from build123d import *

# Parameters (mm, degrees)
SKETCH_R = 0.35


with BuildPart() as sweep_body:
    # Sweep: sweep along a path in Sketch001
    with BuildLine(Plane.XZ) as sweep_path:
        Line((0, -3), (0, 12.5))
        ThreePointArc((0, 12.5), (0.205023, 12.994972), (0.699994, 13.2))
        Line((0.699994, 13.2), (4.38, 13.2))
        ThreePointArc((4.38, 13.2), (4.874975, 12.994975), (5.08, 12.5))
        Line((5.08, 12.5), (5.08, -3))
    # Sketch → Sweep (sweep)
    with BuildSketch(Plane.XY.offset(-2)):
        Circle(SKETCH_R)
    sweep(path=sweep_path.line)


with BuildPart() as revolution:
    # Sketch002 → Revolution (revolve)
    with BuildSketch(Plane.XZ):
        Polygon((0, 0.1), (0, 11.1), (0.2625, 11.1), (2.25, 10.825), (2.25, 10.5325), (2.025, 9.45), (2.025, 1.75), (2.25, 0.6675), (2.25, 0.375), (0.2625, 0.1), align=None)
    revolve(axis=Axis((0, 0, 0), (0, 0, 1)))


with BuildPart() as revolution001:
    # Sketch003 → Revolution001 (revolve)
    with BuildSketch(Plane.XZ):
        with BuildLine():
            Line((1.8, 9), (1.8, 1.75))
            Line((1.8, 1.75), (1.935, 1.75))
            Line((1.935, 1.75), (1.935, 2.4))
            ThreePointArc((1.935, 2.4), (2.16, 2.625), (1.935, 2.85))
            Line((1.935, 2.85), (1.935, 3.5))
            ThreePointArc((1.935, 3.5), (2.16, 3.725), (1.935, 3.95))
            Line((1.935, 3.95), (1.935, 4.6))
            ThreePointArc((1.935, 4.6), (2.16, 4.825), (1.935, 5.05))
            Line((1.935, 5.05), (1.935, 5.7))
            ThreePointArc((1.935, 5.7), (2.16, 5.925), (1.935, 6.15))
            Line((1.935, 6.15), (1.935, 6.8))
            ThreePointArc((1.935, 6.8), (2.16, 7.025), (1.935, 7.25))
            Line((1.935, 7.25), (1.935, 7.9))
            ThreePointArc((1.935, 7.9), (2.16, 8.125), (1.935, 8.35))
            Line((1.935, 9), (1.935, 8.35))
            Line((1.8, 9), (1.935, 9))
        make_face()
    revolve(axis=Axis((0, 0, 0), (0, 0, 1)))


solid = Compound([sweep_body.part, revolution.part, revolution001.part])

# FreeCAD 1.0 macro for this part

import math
import FreeCAD as App
import Part
import Sketcher
from FreeCAD import Vector
Q = App.Units.Quantity

doc = App.newDocument("Part")
body = doc.addObject("PartDesign::Body", "Body")

# Sketch on XY plane
sketch1 = body.newObject("Sketcher::SketchObject", "Sketch")
sketch1.AttachmentSupport = (doc.getObject("XY_Plane"), [""])
sketch1.MapMode = "FlatFace"
sketch1.AttachmentOffset = App.Placement(Vector(0, 0, -2), App.Rotation())
sketch1.addGeometry(Part.Circle(Vector(0, 0, 0), Vector(0, 0, 1), 0.35), False)
sketch1.addConstraint([
    Sketcher.Constraint("Coincident", 0, 3, -1, 1),
    Sketcher.Constraint("Diameter", 0, Q("0.7 mm")),
])

# Sketch on XZ plane
sketch2 = body.newObject("Sketcher::SketchObject", "Sketch001")
sketch2.AttachmentSupport = (doc.getObject("XZ_Plane"), [""])
sketch2.MapMode = "FlatFace"
sketch2.addGeometry([
    Part.LineSegment(Vector(0, -3, 0), Vector(0, 12.5, 0)),  # 0
    Part.ArcOfCircle(Part.Circle(Vector(0.7, 12.5, 0), Vector(0, 0, 1), 0.7), math.radians(90), math.radians(180)),  # 1
    Part.LineSegment(Vector(0.7, 13.2, 0), Vector(4.4, 13.2, 0)),  # 2
    Part.ArcOfCircle(Part.Circle(Vector(4.4, 12.5, 0), Vector(0, 0, 1), 0.7), math.radians(0), math.radians(90)),  # 3
    Part.LineSegment(Vector(5.1, 12.5, 0), Vector(5.1, -3, 0)),  # 4
], False)
sketch2.addConstraint([
    Sketcher.Constraint("Tangent", 0, 2, 1, 2),
    Sketcher.Constraint("Coincident", 1, 1, 2, 1),
    Sketcher.Constraint("Tangent", 2, 2, 3, 2),
    Sketcher.Constraint("Tangent", 3, 1, 4, 1),
    Sketcher.Constraint("Vertical", 0),
    Sketcher.Constraint("Horizontal", 2),
    Sketcher.Constraint("Vertical", 4),
    Sketcher.Constraint("Equal", 1, 3),
    Sketcher.Constraint("PointOnObject", 0, 1, -2),
    Sketcher.Constraint("Horizontal", 0, 1, 4, 2),
    Sketcher.Constraint("Radius", 1, Q("0.700001 mm")),
    Sketcher.Constraint("DistanceY", 0, 1, 0, 2, Q("15.5 mm")),
    Sketcher.Constraint("DistanceY", 0, 1, -1, 1, Q("3 mm")),
    Sketcher.Constraint("DistanceX", -1, 1, 3, 3, Q("4.380001 mm")),
    Sketcher.Constraint("DistanceX", 2, 1, 2, 2, Q("3.680006 mm")),
])
doc.recompute()

additivepipe = body.newObject("PartDesign::AdditivePipe", "AdditivePipe")
additivepipe.Profile = sketch1
additivepipe.Spine = (sketch2, ["Edge1", "Edge2", "Edge3", "Edge4", "Edge5"])
body2 = doc.addObject("PartDesign::Body", "Body001")

# Sketch on XZ plane
sketch3 = body2.newObject("Sketcher::SketchObject", "Sketch002")
sketch3.AttachmentSupport = (doc.getObject("XZ_Plane001"), [""])
sketch3.MapMode = "FlatFace"
sketch3.addGeometry([
    Part.LineSegment(Vector(0, 11.1, 0), Vector(0, 0.1, 0)),  # 0
    Part.LineSegment(Vector(0, 0.1, 0), Vector(0.26, 0.1, 0)),  # 1
    Part.LineSegment(Vector(0.26, 0.1, 0), Vector(2.25, 0.38, 0)),  # 2
    Part.LineSegment(Vector(2.25, 0.38, 0), Vector(2.25, 0.67, 0)),  # 3
    Part.LineSegment(Vector(2.25, 0.67, 0), Vector(2.02, 1.75, 0)),  # 4
    Part.LineSegment(Vector(2.02, 1.75, 0), Vector(2.02, 9.45, 0)),  # 5
    Part.LineSegment(Vector(2.02, 9.45, 0), Vector(2.25, 10.53, 0)),  # 6
    Part.LineSegment(Vector(2.25, 10.53, 0), Vector(2.25, 10.82, 0)),  # 7
    Part.LineSegment(Vector(2.25, 10.82, 0), Vector(0.26, 11.1, 0)),  # 8
    Part.LineSegment(Vector(0.26, 11.1, 0), Vector(0, 11.1, 0)),  # 9
], False)
sketch3.addConstraint([
    Sketcher.Constraint("Coincident", 0, 2, 1, 1),
    Sketcher.Constraint("Coincident", 1, 2, 2, 1),
    Sketcher.Constraint("Coincident", 2, 2, 3, 1),
    Sketcher.Constraint("Coincident", 3, 2, 4, 1),
    Sketcher.Constraint("Coincident", 4, 2, 5, 1),
    Sketcher.Constraint("Coincident", 5, 2, 6, 1),
    Sketcher.Constraint("Coincident", 6, 2, 7, 1),
    Sketcher.Constraint("Coincident", 7, 2, 8, 1),
    Sketcher.Constraint("Coincident", 8, 2, 9, 1),
    Sketcher.Constraint("Coincident", 9, 2, 0, 1),
    Sketcher.Constraint("Vertical", 0),
    Sketcher.Constraint("Horizontal", 1),
    Sketcher.Constraint("Vertical", 3),
    Sketcher.Constraint("Vertical", 5),
    Sketcher.Constraint("Vertical", 7),
    Sketcher.Constraint("Horizontal", 9),
    Sketcher.Constraint("PointOnObject", 0, 2, -2),
    Sketcher.Constraint("Vertical", 3, 2, 6, 2),
    Sketcher.Constraint("Vertical", 1, 2, 8, 2),
    Sketcher.Constraint("Equal", 3, 7),
    Sketcher.Constraint("Equal", 4, 6),
    Sketcher.Constraint("Equal", 2, 8),
    Sketcher.Constraint("DistanceY", 0, 2, 0, 1, Q("11 mm")),
    Sketcher.Constraint("DistanceY", 5, 1, 5, 2, Q("7.7 mm")),
    Sketcher.Constraint("DistanceY", -1, 1, 0, 2, Q("0.1 mm")),
    Sketcher.Constraint("DistanceX", -1, 1, 2, 2, Q("2.25 mm")),
    Sketcher.Constraint("DistanceY", 2, 2, 7, 2, Q("10.45 mm")),
    Sketcher.Constraint("DistanceX", 1, 1, 1, 2, Q("0.2625 mm")),
    Sketcher.Constraint("DistanceY", 3, 1, 3, 2, Q("0.2925 mm")),
    Sketcher.Constraint("DistanceX", -1, 1, 4, 2, Q("2.025 mm")),
])
revolution = body2.newObject("PartDesign::Revolution", "Revolution")
revolution.Profile = sketch3
revolution.ReferenceAxis = (sketch3, ["V_Axis"])
revolution.Angle = 360
body3 = doc.addObject("PartDesign::Body", "Body002")

# Sketch on XZ plane
sketch4 = body3.newObject("Sketcher::SketchObject", "Sketch003")
sketch4.AttachmentSupport = (doc.getObject("XZ_Plane002"), [""])
sketch4.MapMode = "FlatFace"
sketch4.addGeometry([
    Part.LineSegment(Vector(1.8, 9, 0), Vector(1.8, 1.75, 0)),  # 0
    Part.LineSegment(Vector(1.8, 1.75, 0), Vector(1.94, 1.75, 0)),  # 1
    Part.LineSegment(Vector(1.94, 1.75, 0), Vector(1.94, 2.4, 0)),  # 2
    Part.ArcOfCircle(Part.Circle(Vector(1.94, 2.62, 0), Vector(0, 0, 1), 0.23), math.radians(-90), math.radians(90)),  # 3
    Part.LineSegment(Vector(1.94, 2.85, 0), Vector(1.94, 3.5, 0)),  # 4
    Part.ArcOfCircle(Part.Circle(Vector(1.94, 3.73, 0), Vector(0, 0, 1), 0.23), math.radians(-90), math.radians(90)),  # 5
    Part.LineSegment(Vector(1.94, 3.95, 0), Vector(1.94, 4.6, 0)),  # 6
    Part.ArcOfCircle(Part.Circle(Vector(1.94, 4.83, 0), Vector(0, 0, 1), 0.23), math.radians(-90), math.radians(90)),  # 7
    Part.LineSegment(Vector(1.94, 5.05, 0), Vector(1.94, 5.7, 0)),  # 8
    Part.ArcOfCircle(Part.Circle(Vector(1.94, 5.92, 0), Vector(0, 0, 1), 0.23), math.radians(-90), math.radians(90)),  # 9
    Part.LineSegment(Vector(1.94, 6.15, 0), Vector(1.94, 6.8, 0)),  # 10
    Part.ArcOfCircle(Part.Circle(Vector(1.94, 7.03, 0), Vector(0, 0, 1), 0.23), math.radians(-90), math.radians(90)),  # 11
    Part.LineSegment(Vector(1.94, 7.25, 0), Vector(1.94, 7.9, 0)),  # 12
    Part.ArcOfCircle(Part.Circle(Vector(1.94, 8.12, 0), Vector(0, 0, 1), 0.23), math.radians(-90), math.radians(90)),  # 13
    Part.LineSegment(Vector(1.94, 8.35, 0), Vector(1.94, 9, 0)),  # 14
    Part.LineSegment(Vector(1.94, 9, 0), Vector(1.8, 9, 0)),  # 15
], False)
sketch4.addConstraint([
    Sketcher.Constraint("Coincident", 0, 2, 1, 1),
    Sketcher.Constraint("Coincident", 1, 2, 2, 1),
    Sketcher.Constraint("Coincident", 2, 2, 3, 1),
    Sketcher.Constraint("Coincident", 3, 2, 4, 1),
    Sketcher.Constraint("Coincident", 4, 2, 5, 1),
    Sketcher.Constraint("Coincident", 5, 2, 6, 1),
    Sketcher.Constraint("Coincident", 6, 2, 7, 1),
    Sketcher.Constraint("Coincident", 7, 2, 8, 1),
    Sketcher.Constraint("Coincident", 8, 2, 9, 1),
    Sketcher.Constraint("Coincident", 9, 2, 10, 1),
    Sketcher.Constraint("Coincident", 10, 2, 11, 1),
    Sketcher.Constraint("Coincident", 11, 2, 12, 1),
    Sketcher.Constraint("Coincident", 12, 2, 13, 1),
    Sketcher.Constraint("Coincident", 13, 2, 14, 1),
    Sketcher.Constraint("Coincident", 14, 2, 15, 1),
    Sketcher.Constraint("Coincident", 15, 2, 0, 1),
    Sketcher.Constraint("Vertical", 0),
    Sketcher.Constraint("Horizontal", 1),
    Sketcher.Constraint("Vertical", 2),
    Sketcher.Constraint("Vertical", 4),
    Sketcher.Constraint("Vertical", 6),
    Sketcher.Constraint("Vertical", 8),
    Sketcher.Constraint("Vertical", 10),
    Sketcher.Constraint("Vertical", 12),
    Sketcher.Constraint("Vertical", 14),
    Sketcher.Constraint("Horizontal", 15),
    Sketcher.Constraint("Equal", 3, 5),
    Sketcher.Constraint("Equal", 5, 7),
    Sketcher.Constraint("Equal", 7, 9),
    Sketcher.Constraint("Equal", 9, 11),
    Sketcher.Constraint("Equal", 11, 13),
    Sketcher.Constraint("Vertical", 3, 3, 5, 3),
    Sketcher.Constraint("Vertical", 5, 3, 7, 3),
    Sketcher.Constraint("Vertical", 7, 3, 9, 3),
    Sketcher.Constraint("Vertical", 9, 3, 11, 3),
    Sketcher.Constraint("Vertical", 11, 3, 13, 3),
    Sketcher.Constraint("Vertical", 13, 3, 1, 2),
    Sketcher.Constraint("Vertical", 2, 2, 3, 2),
    Sketcher.Constraint("Vertical", 4, 2, 5, 2),
    Sketcher.Constraint("Vertical", 6, 2, 7, 2),
    Sketcher.Constraint("Vertical", 8, 2, 9, 2),
    Sketcher.Constraint("Vertical", 10, 2, 11, 2),
    Sketcher.Constraint("Vertical", 12, 2, 13, 2),
    Sketcher.Constraint("Equal", 2, 4),
    Sketcher.Constraint("Equal", 4, 6),
    Sketcher.Constraint("Equal", 6, 8),
    Sketcher.Constraint("Equal", 8, 10),
    Sketcher.Constraint("Equal", 10, 12),
    Sketcher.Constraint("Equal", 12, 14),
    Sketcher.Constraint("DistanceY", -1, 1, 14, 2, Q("9 mm")),
    Sketcher.Constraint("Radius", 3, Q("0.225 mm")),
    Sketcher.Constraint("DistanceY", 0, 2, 0, 1, Q("7.25 mm")),
    Sketcher.Constraint("DistanceX", -1, 1, 0, 2, Q("1.8 mm")),
    Sketcher.Constraint("DistanceX", 1, 1, 1, 2, Q("0.135 mm")),
])
revolution2 = body3.newObject("PartDesign::Revolution", "Revolution001")
revolution2.Profile = sketch4
revolution2.ReferenceAxis = (sketch4, ["V_Axis"])
revolution2.Angle = 360

doc.recompute()
